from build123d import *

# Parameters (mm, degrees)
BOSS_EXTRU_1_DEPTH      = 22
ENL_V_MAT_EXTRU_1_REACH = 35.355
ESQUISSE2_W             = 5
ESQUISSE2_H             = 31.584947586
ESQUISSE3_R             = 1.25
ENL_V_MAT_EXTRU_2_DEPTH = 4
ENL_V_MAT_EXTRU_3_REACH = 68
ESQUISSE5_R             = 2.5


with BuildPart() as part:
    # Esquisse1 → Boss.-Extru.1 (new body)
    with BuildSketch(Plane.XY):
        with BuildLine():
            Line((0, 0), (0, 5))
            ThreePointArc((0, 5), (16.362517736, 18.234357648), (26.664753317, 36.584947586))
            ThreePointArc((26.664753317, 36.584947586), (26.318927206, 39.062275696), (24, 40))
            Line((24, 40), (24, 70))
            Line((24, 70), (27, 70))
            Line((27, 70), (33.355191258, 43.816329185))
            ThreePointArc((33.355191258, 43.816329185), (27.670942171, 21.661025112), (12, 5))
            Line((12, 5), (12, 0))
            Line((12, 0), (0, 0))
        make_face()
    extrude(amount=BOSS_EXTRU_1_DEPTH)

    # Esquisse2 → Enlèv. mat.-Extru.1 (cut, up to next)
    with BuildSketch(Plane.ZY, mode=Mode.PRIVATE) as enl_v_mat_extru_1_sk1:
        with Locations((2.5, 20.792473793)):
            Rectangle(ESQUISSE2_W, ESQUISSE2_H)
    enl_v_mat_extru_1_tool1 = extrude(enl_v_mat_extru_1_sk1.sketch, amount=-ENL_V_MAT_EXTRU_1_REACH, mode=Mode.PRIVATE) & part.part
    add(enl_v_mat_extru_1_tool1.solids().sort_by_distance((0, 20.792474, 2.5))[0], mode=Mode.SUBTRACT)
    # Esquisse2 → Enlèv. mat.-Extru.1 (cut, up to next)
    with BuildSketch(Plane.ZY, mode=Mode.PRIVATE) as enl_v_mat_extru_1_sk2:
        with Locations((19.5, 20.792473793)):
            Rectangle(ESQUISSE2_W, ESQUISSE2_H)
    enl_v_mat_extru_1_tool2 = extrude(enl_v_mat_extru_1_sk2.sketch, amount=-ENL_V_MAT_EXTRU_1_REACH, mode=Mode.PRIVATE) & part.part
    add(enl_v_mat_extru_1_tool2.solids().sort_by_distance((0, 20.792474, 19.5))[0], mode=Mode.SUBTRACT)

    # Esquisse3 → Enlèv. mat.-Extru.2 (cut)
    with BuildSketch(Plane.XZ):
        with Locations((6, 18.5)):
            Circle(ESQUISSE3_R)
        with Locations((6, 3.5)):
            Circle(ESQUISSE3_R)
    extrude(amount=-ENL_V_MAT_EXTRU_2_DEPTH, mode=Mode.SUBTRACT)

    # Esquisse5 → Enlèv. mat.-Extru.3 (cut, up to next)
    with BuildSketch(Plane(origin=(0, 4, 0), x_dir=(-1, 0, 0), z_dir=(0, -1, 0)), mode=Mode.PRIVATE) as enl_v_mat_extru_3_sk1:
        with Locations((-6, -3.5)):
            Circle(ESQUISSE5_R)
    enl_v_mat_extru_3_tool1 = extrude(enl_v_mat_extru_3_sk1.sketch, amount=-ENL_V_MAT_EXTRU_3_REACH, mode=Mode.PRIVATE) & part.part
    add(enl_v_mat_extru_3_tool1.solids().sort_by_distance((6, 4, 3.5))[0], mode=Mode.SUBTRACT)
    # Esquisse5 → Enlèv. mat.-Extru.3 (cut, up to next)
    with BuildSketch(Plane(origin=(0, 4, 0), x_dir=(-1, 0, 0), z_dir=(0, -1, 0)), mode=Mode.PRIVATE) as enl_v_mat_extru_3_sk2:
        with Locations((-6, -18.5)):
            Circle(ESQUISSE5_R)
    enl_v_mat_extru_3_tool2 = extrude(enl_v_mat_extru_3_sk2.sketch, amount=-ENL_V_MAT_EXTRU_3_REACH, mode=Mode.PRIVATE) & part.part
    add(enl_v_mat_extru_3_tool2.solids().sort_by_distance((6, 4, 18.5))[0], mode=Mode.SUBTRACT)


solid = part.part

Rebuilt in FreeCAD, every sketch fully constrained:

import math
import FreeCAD as App
import Part
import Sketcher
from FreeCAD import Vector


def add_polygon(sketch, points):
    """Adds a closed chain of lines whose ends are joined by coincident constraints."""
    first, n = sketch.GeometryCount, len(points)
    for a, b in zip(points, points[1:] + points[:1]):
        sketch.addGeometry(Part.LineSegment(App.Vector(*a, 0), App.Vector(*b, 0)), False)
    for i in range(n):
        sketch.addConstraint(Sketcher.Constraint("Coincident", first + i, 2, first + (i + 1) % n, 1))

doc = App.newDocument("Part")
body = doc.addObject("PartDesign::Body", "Body")

# Sketch on XY plane
sketch1 = body.newObject("Sketcher::SketchObject", "Sketch")
sketch1.AttachmentSupport = (doc.getObject("XY_Plane"), [""])
sketch1.MapMode = "FlatFace"
sketch1.addGeometry([
    Part.LineSegment(Vector(0, 5, 0), Vector(0, 0, 0)),  # 0
    Part.LineSegment(Vector(0, 0, 0), Vector(12, 0, 0)),  # 1
    Part.LineSegment(Vector(12, 0, 0), Vector(12, 5, 0)),  # 2
    Part.ArcOfCircle(Part.Circle(Vector(-12.5, 43.8, 0), Vector(0, 0, 1), 45.9), math.radians(-58), math.radians(0)),  # 3
    Part.LineSegment(Vector(33.4, 43.8, 0), Vector(27, 70, 0)),  # 4
    Part.LineSegment(Vector(27, 70, 0), Vector(24, 70, 0)),  # 5
    Part.LineSegment(Vector(24, 70, 0), Vector(24, 40, 0)),  # 6
    Part.ArcOfCircle(Part.Circle(Vector(24.3, 37.5, 0), Vector(0, 0, 1), 2.5), math.radians(-22), math.radians(98)),  # 7
    Part.ArcOfCircle(Part.Circle(Vector(-26.3, 54.3, 0), Vector(0, 0, 1), 55.8), math.radians(-62), math.radians(-18)),  # 8
], False)
sketch1.addConstraint([
    Sketcher.Constraint("Coincident", 0, 2, 1, 1),
    Sketcher.Constraint("Coincident", 1, 2, 2, 1),
    Sketcher.Constraint("Coincident", 2, 2, 3, 1),
    Sketcher.Constraint("Coincident", 3, 2, 4, 1),
    Sketcher.Constraint("Coincident", 4, 2, 5, 1),
    Sketcher.Constraint("Coincident", 5, 2, 6, 1),
    Sketcher.Constraint("Coincident", 6, 2, 7, 2),
    Sketcher.Constraint("Coincident", 7, 1, 8, 2),
    Sketcher.Constraint("Coincident", 8, 1, 0, 1),
    Sketcher.Constraint("Vertical", 0),
    Sketcher.Constraint("Horizontal", 1),
    Sketcher.Constraint("Vertical", 2),
    Sketcher.Constraint("Horizontal", 5),
    Sketcher.Constraint("Vertical", 6),
    Sketcher.Constraint("Coincident", 0, 2, -1, 1),
    Sketcher.Constraint("Horizontal", 2, 2, 8, 1),
    Sketcher.Constraint("Radius", 7, 2.5),
    Sketcher.Constraint("DistanceX", 1, 1, 1, 2, 12.0),
    Sketcher.Constraint("DistanceX", 5, 2, 5, 1, 3.0),
    Sketcher.Constraint("DistanceY", 0, 2, 0, 1, 5.0),
    Sketcher.Constraint("DistanceY", 6, 2, 6, 1, 30.0),
    Sketcher.Constraint("DistanceX", -1, 1, 4, 2, 27.0),
    Sketcher.Constraint("DistanceY", -1, 1, 4, 2, 70.0),
    Sketcher.Constraint("Radius", 3, 45.898809),
    Sketcher.Constraint("Radius", 8, 55.840732),
    Sketcher.Constraint("DistanceX", 7, 3, 7, 1, 2.316798),
    Sketcher.Constraint("DistanceY", -1, 1, 3, 3, 43.785461),
    Sketcher.Constraint("DistanceX", 8, 3, -1, 1, 26.30612),
    Sketcher.Constraint("DistanceY", -1, 1, 3, 2, 43.816329),
])
pad1 = body.newObject("PartDesign::Pad", "Pad")
pad1.Profile = sketch1
pad1.Length = 22

# Sketch on YZ plane
sketch2 = body.newObject("Sketcher::SketchObject", "Sketch001")
sketch2.AttachmentSupport = (doc.getObject("YZ_Plane"), [""])
sketch2.MapMode = "FlatFace"
add_polygon(sketch2, [(37, 0), (5, 0), (5, 5), (37, 5)])  # lines 0-3
sketch2.addConstraint([
    Sketcher.Constraint("Horizontal", 0),
    Sketcher.Constraint("Vertical", 1),
    Sketcher.Constraint("Horizontal", 2),
    Sketcher.Constraint("Vertical", 3),
    Sketcher.Constraint("PointOnObject", 0, 2, -1),
    Sketcher.Constraint("DistanceY", 1, 1, 1, 2, 5.0),
    Sketcher.Constraint("DistanceX", -1, 1, 0, 2, 5.0),
    Sketcher.Constraint("DistanceX", 0, 2, 0, 1, 31.584948),
])
pocket1 = body.newObject("PartDesign::Pocket", "Pocket")
pocket1.Profile = sketch2
pocket1.Length = 32.786882
pocket1.Reversed = True

# Sketch on YZ plane
sketch3 = body.newObject("Sketcher::SketchObject", "Sketch002")
sketch3.AttachmentSupport = (doc.getObject("YZ_Plane"), [""])
sketch3.MapMode = "FlatFace"
add_polygon(sketch3, [(37, 17), (5, 17), (5, 22), (37, 22)])  # lines 0-3
sketch3.addConstraint([
    Sketcher.Constraint("Horizontal", 0),
    Sketcher.Constraint("Vertical", 1),
    Sketcher.Constraint("Horizontal", 2),
    Sketcher.Constraint("Vertical", 3),
    Sketcher.Constraint("DistanceY", 1, 1, 1, 2, 5.0),
    Sketcher.Constraint("DistanceX", -1, 1, 0, 2, 5.0),
    Sketcher.Constraint("DistanceY", -1, 1, 0, 2, 17.0),
    Sketcher.Constraint("DistanceX", 0, 2, 0, 1, 31.584948),
])
pocket2 = body.newObject("PartDesign::Pocket", "Pocket001")
pocket2.Profile = sketch3
pocket2.Length = 32.786882
pocket2.Reversed = True

# Sketch on XZ plane
sketch4 = body.newObject("Sketcher::SketchObject", "Sketch003")
sketch4.AttachmentSupport = (doc.getObject("XZ_Plane"), [""])
sketch4.MapMode = "FlatFace"
sketch4.addGeometry([
    Part.Circle(Vector(6, 18.5, 0), Vector(0, 0, 1), 1.2),
    Part.Circle(Vector(6, 3.5, 0), Vector(0, 0, 1), 1.2),
], False)
sketch4.addConstraint([
    Sketcher.Constraint("Equal", 0, 1),
    Sketcher.Constraint("Vertical", 0, 3, 1, 3),
    Sketcher.Constraint("Diameter", 0, 2.5),
    Sketcher.Constraint("DistanceX", -1, 1, 0, 3, 6.0),
    Sketcher.Constraint("DistanceY", 1, 3, 0, 3, 15.0),
    Sketcher.Constraint("DistanceY", -1, 1, 0, 3, 18.5),
])
pocket3 = body.newObject("PartDesign::Pocket", "Pocket002")
pocket3.Profile = sketch4
pocket3.Length = 4

# Sketch on XZ plane
sketch5 = body.newObject("Sketcher::SketchObject", "Sketch004")
sketch5.AttachmentSupport = (doc.getObject("XZ_Plane"), [""])
sketch5.MapMode = "FlatFace"
sketch5.AttachmentOffset = App.Placement(Vector(0, 0, -4), App.Rotation())
sketch5.addGeometry(Part.Circle(Vector(6, 3.5, 0), Vector(0, 0, 1), 2.5), False)
sketch5.addConstraint([
    Sketcher.Constraint("Diameter", 0, 5.0),
    Sketcher.Constraint("DistanceX", -1, 1, 0, 3, 6.0),
    Sketcher.Constraint("DistanceY", -1, 1, 0, 3, 3.5),
])
pocket4 = body.newObject("PartDesign::Pocket", "Pocket003")
pocket4.Profile = sketch5
pocket4.Length = 6.196291

# Sketch on XZ plane
sketch6 = body.newObject("Sketcher::SketchObject", "Sketch005")
sketch6.AttachmentSupport = (doc.getObject("XZ_Plane"), [""])
sketch6.MapMode = "FlatFace"
sketch6.AttachmentOffset = App.Placement(Vector(0, 0, -4), App.Rotation())
sketch6.addGeometry(Part.Circle(Vector(6, 18.5, 0), Vector(0, 0, 1), 2.5), False)
sketch6.addConstraint([
    Sketcher.Constraint("Diameter", 0, 5.0),
    Sketcher.Constraint("DistanceX", -1, 1, 0, 3, 6.0),
    Sketcher.Constraint("DistanceY", -1, 1, 0, 3, 18.5),
])
pocket5 = body.newObject("PartDesign::Pocket", "Pocket004")
pocket5.Profile = sketch6
pocket5.Length = 6.196291

doc.recompute()
